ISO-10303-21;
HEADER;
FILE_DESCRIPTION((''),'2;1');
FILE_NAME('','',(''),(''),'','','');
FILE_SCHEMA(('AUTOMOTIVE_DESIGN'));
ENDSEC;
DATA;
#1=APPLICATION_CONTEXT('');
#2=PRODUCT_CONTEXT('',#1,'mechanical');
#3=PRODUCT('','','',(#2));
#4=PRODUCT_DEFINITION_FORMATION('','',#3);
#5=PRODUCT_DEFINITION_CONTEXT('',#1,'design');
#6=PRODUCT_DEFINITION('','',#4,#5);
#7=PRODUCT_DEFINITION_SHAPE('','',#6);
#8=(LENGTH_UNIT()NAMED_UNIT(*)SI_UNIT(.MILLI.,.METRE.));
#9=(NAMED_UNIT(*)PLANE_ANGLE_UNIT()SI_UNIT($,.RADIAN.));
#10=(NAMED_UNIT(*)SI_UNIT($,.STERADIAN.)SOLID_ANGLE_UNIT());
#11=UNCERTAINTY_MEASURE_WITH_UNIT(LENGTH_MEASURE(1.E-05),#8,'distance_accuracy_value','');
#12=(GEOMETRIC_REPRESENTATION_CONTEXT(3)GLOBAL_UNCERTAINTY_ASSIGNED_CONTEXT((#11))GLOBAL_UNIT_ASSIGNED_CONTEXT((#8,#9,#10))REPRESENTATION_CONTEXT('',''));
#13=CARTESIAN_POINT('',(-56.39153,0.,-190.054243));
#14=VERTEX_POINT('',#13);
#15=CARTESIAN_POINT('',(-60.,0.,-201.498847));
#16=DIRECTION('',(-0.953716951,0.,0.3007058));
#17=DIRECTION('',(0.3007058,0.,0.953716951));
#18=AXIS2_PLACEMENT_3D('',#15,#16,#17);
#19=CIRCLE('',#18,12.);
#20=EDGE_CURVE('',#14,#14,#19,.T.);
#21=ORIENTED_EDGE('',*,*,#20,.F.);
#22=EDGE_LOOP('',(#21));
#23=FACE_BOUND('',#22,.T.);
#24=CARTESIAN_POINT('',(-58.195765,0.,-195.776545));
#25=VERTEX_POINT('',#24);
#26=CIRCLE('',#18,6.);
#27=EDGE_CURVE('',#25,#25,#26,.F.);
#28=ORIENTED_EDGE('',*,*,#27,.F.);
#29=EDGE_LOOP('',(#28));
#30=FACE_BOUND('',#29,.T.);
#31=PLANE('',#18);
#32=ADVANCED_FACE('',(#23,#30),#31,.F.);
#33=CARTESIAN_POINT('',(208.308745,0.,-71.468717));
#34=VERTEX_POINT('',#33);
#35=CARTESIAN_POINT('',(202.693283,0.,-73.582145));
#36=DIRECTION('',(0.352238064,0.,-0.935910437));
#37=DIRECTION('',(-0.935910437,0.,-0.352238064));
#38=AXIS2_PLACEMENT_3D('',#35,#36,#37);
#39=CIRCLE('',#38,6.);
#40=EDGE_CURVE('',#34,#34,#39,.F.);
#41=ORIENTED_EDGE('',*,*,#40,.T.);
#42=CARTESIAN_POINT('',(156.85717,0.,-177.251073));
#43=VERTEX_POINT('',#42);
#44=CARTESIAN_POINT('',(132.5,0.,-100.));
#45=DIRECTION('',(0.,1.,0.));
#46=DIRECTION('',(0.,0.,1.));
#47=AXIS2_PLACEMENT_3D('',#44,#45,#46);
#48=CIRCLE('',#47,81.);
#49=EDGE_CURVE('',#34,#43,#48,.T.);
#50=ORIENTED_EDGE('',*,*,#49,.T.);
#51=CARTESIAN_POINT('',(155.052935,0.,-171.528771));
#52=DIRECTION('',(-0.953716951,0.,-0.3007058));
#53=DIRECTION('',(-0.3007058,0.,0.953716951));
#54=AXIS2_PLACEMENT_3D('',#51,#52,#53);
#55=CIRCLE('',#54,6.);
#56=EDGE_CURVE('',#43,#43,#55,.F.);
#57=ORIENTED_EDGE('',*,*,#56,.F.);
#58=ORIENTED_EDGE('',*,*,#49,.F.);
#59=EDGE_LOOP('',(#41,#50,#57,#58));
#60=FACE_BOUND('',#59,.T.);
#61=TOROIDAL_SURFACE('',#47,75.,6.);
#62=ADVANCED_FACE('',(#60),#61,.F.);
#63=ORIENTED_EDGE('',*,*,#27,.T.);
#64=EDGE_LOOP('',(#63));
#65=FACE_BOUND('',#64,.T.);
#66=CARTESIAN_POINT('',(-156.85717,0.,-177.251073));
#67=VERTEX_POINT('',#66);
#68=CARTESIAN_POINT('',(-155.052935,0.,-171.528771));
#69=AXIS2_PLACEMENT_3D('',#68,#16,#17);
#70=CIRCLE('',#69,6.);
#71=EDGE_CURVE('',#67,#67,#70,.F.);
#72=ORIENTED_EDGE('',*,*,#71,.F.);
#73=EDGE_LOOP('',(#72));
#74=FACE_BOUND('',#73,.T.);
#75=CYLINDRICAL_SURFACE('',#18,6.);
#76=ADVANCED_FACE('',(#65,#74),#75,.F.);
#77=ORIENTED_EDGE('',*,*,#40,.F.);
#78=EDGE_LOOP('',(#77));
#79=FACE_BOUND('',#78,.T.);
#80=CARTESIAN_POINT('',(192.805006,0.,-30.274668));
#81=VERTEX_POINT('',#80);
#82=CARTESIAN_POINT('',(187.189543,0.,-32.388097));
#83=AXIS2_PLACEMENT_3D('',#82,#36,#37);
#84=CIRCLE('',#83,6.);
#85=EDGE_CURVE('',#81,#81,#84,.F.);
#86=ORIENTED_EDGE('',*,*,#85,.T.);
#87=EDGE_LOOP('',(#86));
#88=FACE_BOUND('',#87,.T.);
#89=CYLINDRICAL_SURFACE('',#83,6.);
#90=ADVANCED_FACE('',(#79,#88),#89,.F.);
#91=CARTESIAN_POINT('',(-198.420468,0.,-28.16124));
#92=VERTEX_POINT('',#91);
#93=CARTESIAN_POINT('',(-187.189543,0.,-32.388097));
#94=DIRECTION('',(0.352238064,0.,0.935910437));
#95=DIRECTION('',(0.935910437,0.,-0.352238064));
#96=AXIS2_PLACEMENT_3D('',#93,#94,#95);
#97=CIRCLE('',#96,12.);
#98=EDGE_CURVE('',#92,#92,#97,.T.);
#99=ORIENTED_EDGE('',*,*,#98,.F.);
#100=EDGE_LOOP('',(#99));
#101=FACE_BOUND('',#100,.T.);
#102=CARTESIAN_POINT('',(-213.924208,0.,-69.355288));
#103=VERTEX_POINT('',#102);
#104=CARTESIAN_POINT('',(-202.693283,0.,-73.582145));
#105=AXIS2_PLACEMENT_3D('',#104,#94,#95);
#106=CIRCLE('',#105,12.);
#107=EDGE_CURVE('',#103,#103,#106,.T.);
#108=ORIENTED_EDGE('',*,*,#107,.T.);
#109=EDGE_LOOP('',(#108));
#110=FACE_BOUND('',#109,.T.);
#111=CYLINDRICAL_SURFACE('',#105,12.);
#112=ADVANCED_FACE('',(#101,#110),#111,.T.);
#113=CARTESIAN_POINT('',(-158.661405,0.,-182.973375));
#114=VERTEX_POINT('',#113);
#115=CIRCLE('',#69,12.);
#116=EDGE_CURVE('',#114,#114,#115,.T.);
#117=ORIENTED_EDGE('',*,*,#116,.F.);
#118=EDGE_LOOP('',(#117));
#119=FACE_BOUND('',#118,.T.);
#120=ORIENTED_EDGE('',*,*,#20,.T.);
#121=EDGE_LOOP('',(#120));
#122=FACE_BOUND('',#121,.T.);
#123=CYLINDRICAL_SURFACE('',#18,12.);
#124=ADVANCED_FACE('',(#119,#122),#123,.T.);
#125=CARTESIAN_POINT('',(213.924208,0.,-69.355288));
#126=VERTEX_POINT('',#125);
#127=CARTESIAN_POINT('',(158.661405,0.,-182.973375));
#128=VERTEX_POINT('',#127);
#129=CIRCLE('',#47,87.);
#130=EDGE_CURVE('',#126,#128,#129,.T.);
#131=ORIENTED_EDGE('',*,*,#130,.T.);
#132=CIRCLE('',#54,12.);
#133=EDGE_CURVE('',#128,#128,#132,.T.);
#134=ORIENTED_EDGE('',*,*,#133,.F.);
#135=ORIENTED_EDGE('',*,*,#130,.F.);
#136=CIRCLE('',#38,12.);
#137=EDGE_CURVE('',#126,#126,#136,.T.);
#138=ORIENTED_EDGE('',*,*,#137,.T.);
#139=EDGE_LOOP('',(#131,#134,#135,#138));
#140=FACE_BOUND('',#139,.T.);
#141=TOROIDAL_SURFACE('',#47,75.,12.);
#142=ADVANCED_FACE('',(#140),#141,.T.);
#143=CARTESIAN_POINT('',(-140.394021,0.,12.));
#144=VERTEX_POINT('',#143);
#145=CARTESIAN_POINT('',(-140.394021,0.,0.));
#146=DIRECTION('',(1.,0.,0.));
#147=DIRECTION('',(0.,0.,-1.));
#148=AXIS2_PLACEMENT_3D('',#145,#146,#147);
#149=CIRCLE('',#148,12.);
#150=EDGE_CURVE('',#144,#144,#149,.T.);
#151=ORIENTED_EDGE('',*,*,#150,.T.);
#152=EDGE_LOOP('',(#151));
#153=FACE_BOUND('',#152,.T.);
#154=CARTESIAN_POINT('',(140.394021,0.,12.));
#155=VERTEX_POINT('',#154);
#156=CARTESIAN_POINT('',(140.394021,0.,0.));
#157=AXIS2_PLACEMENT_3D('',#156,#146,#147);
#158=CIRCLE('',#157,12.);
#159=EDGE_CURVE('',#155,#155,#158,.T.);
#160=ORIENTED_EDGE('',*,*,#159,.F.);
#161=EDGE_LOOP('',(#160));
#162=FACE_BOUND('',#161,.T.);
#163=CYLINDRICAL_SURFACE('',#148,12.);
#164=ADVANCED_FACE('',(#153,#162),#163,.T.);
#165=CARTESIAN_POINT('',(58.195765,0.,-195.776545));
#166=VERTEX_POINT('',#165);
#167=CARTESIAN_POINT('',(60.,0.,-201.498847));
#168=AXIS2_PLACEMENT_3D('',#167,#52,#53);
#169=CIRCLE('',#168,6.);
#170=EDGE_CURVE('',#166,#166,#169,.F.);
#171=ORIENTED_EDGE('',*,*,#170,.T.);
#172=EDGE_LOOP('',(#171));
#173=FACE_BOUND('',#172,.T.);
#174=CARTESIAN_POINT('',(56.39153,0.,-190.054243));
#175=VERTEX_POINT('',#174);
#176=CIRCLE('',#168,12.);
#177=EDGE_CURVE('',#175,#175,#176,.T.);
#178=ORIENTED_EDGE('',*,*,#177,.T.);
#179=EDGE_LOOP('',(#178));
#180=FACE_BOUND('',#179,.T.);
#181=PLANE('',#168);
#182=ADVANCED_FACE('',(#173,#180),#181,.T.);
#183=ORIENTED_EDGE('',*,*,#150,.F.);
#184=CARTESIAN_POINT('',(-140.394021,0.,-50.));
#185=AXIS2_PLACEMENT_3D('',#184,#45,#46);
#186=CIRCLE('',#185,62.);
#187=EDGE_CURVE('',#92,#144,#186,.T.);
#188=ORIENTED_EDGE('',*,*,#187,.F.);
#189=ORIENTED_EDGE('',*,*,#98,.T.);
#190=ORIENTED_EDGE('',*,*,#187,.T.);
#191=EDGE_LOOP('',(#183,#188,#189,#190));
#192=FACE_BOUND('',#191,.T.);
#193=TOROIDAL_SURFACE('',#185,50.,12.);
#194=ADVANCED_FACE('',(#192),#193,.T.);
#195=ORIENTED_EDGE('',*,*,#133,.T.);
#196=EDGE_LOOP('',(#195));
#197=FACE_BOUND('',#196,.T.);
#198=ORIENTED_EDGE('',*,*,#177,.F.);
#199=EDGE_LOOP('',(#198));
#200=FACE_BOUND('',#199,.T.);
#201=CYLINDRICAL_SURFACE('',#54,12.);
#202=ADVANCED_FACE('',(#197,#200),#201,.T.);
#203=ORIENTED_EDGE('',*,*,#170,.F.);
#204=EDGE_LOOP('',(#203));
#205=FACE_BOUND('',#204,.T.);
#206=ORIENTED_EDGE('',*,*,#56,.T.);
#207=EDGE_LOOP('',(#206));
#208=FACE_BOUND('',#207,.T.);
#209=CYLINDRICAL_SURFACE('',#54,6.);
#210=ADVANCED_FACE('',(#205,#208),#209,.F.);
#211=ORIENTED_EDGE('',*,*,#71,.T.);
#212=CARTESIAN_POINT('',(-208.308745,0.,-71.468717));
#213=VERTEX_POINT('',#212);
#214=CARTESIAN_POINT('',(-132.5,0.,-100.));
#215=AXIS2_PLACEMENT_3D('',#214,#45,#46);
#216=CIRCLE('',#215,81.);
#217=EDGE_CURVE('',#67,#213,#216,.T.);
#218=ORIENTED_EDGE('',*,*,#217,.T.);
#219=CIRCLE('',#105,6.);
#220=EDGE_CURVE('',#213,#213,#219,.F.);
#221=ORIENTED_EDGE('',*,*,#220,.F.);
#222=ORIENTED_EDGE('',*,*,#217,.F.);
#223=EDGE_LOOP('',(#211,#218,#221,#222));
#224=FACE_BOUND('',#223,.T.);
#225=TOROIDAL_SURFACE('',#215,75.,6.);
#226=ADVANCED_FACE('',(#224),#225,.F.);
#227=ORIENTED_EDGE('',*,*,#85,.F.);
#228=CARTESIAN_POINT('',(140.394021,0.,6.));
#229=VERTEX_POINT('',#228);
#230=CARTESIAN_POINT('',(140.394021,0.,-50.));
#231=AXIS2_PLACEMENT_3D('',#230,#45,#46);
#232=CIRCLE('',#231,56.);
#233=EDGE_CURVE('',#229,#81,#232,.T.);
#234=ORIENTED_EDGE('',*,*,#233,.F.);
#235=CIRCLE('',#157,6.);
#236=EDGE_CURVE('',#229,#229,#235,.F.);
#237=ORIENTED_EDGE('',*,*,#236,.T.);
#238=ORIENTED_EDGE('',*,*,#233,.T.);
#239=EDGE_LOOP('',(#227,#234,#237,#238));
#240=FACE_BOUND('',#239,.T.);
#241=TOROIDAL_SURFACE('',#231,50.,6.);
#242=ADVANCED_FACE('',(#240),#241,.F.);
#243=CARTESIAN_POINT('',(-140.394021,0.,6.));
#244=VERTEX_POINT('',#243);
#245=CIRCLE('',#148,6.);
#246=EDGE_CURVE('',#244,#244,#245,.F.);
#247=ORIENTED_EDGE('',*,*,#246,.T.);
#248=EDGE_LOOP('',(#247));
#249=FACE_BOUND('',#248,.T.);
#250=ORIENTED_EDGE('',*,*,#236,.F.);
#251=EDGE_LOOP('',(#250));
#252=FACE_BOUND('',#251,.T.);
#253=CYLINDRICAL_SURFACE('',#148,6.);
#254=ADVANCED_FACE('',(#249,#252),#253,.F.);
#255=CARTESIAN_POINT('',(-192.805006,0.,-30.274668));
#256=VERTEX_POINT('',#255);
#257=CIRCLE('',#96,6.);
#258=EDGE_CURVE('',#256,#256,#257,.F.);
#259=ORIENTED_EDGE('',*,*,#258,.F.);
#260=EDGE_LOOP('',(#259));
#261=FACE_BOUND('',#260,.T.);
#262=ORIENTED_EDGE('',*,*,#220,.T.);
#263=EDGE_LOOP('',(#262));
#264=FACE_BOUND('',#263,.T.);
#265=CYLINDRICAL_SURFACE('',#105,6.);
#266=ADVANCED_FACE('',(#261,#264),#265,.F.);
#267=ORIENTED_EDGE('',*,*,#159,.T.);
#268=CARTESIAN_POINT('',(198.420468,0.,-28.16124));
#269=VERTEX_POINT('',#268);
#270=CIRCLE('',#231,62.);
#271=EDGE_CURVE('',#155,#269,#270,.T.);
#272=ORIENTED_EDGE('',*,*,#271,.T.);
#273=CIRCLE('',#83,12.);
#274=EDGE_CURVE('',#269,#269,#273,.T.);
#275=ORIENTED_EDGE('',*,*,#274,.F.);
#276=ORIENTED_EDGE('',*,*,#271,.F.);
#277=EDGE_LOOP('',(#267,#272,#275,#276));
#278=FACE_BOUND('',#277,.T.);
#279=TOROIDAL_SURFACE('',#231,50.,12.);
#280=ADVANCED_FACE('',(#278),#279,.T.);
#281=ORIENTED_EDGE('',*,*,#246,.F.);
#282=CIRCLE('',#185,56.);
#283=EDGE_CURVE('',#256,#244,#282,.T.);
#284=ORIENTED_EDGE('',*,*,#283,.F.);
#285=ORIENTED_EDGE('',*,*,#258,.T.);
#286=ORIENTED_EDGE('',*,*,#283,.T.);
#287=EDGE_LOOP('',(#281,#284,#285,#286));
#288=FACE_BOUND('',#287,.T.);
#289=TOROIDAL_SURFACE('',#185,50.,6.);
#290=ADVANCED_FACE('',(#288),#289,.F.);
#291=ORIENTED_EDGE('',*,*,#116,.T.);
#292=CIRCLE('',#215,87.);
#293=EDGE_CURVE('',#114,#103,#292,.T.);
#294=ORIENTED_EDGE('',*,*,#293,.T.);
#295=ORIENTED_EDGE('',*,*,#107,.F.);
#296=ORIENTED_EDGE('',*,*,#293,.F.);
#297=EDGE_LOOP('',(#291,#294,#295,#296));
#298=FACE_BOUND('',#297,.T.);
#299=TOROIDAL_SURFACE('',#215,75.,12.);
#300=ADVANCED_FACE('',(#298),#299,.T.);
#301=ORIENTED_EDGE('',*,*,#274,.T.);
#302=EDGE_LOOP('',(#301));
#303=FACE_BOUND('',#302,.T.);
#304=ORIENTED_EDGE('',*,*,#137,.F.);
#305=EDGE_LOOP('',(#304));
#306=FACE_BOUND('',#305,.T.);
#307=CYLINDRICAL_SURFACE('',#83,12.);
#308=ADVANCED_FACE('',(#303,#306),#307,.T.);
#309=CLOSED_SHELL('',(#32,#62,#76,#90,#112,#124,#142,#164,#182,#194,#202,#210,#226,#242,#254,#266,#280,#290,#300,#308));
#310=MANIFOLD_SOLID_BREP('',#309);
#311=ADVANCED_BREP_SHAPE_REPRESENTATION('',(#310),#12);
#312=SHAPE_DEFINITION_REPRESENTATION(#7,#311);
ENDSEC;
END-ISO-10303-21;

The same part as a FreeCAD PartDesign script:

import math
import FreeCAD as App
import Part
import Sketcher

V = App.Vector
Q = App.Units.Quantity

doc = App.newDocument("Part")
body = doc.addObject("PartDesign::Body", "Body")

# Sketch on YZ plane
sketch1 = body.newObject("Sketcher::SketchObject", "Sketch")
sketch1.AttachmentSupport = (doc.getObject("YZ_Plane"), [""])
sketch1.MapMode = "FlatFace"
sketch1.addGeometry(Part.Circle(V(0, 0, 0), V(0, 0, 1), 12), False)
sketch1.addGeometry(Part.Circle(V(0, 0, 0), V(0, 0, 1), 6), False)
sketch1.addConstraint(Sketcher.Constraint("Coincident", 0, 3, -1, 1))
sketch1.addConstraint(Sketcher.Constraint("Coincident", 1, 3, -1, 1))
sketch1.addConstraint(Sketcher.Constraint("Diameter", 0, 24.0))
sketch1.addConstraint(Sketcher.Constraint("Diameter", 1, 12.0))

# Sketch on XZ plane
sketch2 = body.newObject("Sketcher::SketchObject", "Sketch001")
sketch2.AttachmentSupport = (doc.getObject("XZ_Plane"), [""])
sketch2.MapMode = "FlatFace"
sketch2.addGeometry(Part.LineSegment(V(-60, -201.498847, 0), V(-155.052935, -171.528771, 0)), False)
sketch2.addGeometry(Part.ArcOfCircle(Part.Circle(V(-132.5, -100, 0), V(0, 0, 1), 75), math.radians(159.375734), math.radians(252.5)), False)
sketch2.addGeometry(Part.LineSegment(V(-202.693283, -73.582145, 0), V(-187.189543, -32.388097, 0)), False)
sketch2.addGeometry(Part.ArcOfCircle(Part.Circle(V(-140.394021, -50, 0), V(0, 0, 1), 50), math.radians(90), math.radians(159.375734)), False)
sketch2.addGeometry(Part.LineSegment(V(-140.394021, 0, 0), V(140.394021, 0, 0)), False)
sketch2.addGeometry(Part.ArcOfCircle(Part.Circle(V(140.394021, -50, 0), V(0, 0, 1), 50), math.radians(20.624266), math.radians(90)), False)
sketch2.addGeometry(Part.LineSegment(V(187.189543, -32.388097, 0), V(202.693283, -73.582145, 0)), False)
sketch2.addGeometry(Part.ArcOfCircle(Part.Circle(V(132.5, -100, 0), V(0, 0, 1), 75), math.radians(-72.5), math.radians(20.624266)), False)
sketch2.addGeometry(Part.LineSegment(V(155.052935, -171.528771, 0), V(60, -201.498847, 0)), False)
sketch2.addConstraint(Sketcher.Constraint("Tangent", 0, 2, 1, 2))
sketch2.addConstraint(Sketcher.Constraint("Tangent", 1, 1, 2, 1))
sketch2.addConstraint(Sketcher.Constraint("Tangent", 2, 2, 3, 2))
sketch2.addConstraint(Sketcher.Constraint("Tangent", 3, 1, 4, 1))
sketch2.addConstraint(Sketcher.Constraint("Tangent", 4, 2, 5, 2))
sketch2.addConstraint(Sketcher.Constraint("Tangent", 5, 1, 6, 1))
sketch2.addConstraint(Sketcher.Constraint("Tangent", 6, 2, 7, 2))
sketch2.addConstraint(Sketcher.Constraint("Tangent", 7, 1, 8, 1))
sketch2.addConstraint(Sketcher.Constraint("Horizontal", 4))
sketch2.addConstraint(Sketcher.Constraint("Equal", 3, 5))
sketch2.addConstraint(Sketcher.Constraint("Equal", 1, 7))
sketch2.addConstraint(Sketcher.Constraint("Symmetric", 3, 1, 4, 2, -1, 1))
sketch2.addConstraint(Sketcher.Constraint("Symmetric", 1, 3, 7, 3, -2))
sketch2.addConstraint(Sketcher.Constraint("Symmetric", 0, 1, 8, 2, -2))
sketch2.addConstraint(Sketcher.Constraint("Radius", 1, 75.0))
sketch2.addConstraint(Sketcher.Constraint("Radius", 3, 50.0))
sketch2.addConstraint(Sketcher.Constraint("DistanceY", 1, 3, -1, 1, 100.0))
sketch2.addConstraint(Sketcher.Constraint("DistanceX", 0, 1, -1, 1, 60.0))
sketch2.addConstraint(Sketcher.Constraint("Angle", 0, Q("162.5 deg")))
sketch2.addConstraint(Sketcher.Constraint("DistanceX", 1, 3, 7, 3, 265.0))
sketch2.addConstraint(Sketcher.Constraint("DistanceY", 0, 1, 1, 1, 127.916701))
doc.recompute()

additivepipe = body.newObject("PartDesign::AdditivePipe", "AdditivePipe")
additivepipe.Profile = sketch1
additivepipe.Spine = (sketch2, ["Edge1", "Edge2", "Edge3", "Edge4", "Edge5", "Edge6", "Edge7", "Edge8", "Edge9"])

doc.recompute()
